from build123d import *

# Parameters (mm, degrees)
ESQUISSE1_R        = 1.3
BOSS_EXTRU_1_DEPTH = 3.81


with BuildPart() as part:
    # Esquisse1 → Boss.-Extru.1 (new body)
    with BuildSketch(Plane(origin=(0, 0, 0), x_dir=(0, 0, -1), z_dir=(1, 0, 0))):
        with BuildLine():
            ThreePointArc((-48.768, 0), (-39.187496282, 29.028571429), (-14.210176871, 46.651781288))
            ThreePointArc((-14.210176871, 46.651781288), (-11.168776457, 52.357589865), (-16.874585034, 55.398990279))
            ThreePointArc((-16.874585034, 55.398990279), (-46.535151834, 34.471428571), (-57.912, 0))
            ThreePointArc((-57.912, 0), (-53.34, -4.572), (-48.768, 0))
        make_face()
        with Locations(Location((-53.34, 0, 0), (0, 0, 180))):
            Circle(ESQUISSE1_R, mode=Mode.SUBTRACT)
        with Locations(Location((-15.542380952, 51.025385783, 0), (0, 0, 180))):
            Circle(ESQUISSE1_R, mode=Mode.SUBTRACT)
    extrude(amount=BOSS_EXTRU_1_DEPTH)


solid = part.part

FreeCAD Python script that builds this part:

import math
import FreeCAD as App
import Part
import Sketcher
from FreeCAD import Vector
Q = App.Units.Quantity

doc = App.newDocument("Part")
body = doc.addObject("PartDesign::Body", "Body")

sketch1 = doc.addObject("Sketcher::SketchObject", "Sketch")
body.addObject(sketch1)
sketch1.AttachmentSupport = (doc.YZ_Plane, [""])
sketch1.MapMode = "FlatFace"
sketch1.addGeometry(Part.ArcOfCircle(Part.Circle(Vector(0, 0, 0), Vector(0, 0, 1), 48.768), math.radians(16.940786), math.radians(90)), False)
sketch1.addGeometry(Part.ArcOfCircle(Part.Circle(Vector(51.025386, 15.542381, 0), Vector(0, 0, 1), 4.572), math.radians(-163.059214), math.radians(16.940786)), False)
sketch1.addGeometry(Part.ArcOfCircle(Part.Circle(Vector(0, 0, 0), Vector(0, 0, 1), 57.912), math.radians(16.940786), math.radians(90)), False)
sketch1.addGeometry(Part.ArcOfCircle(Part.Circle(Vector(0, 53.34, 0), Vector(0, 0, 1), 4.572), math.radians(90), math.radians(270)), False)
sketch1.addGeometry(Part.Circle(Vector(0, 53.34, 0), Vector(0, 0, 1), 1.3), False)
sketch1.addGeometry(Part.Circle(Vector(51.025386, 15.542381, 0), Vector(0, 0, 1), 1.3), False)
sketch1.addConstraint(Sketcher.Constraint("Tangent", 0, 1, 1, 1))
sketch1.addConstraint(Sketcher.Constraint("Tangent", 1, 2, 2, 1))
sketch1.addConstraint(Sketcher.Constraint("Tangent", 2, 2, 3, 1))
sketch1.addConstraint(Sketcher.Constraint("Tangent", 3, 2, 0, 2))
sketch1.addConstraint(Sketcher.Constraint("Coincident", 0, 3, -1, 1))
sketch1.addConstraint(Sketcher.Constraint("Coincident", 2, 3, -1, 1))
sketch1.addConstraint(Sketcher.Constraint("Coincident", 4, 3, 3, 3))
sketch1.addConstraint(Sketcher.Constraint("Coincident", 5, 3, 1, 3))
sketch1.addConstraint(Sketcher.Constraint("Equal", 4, 5))
sketch1.addConstraint(Sketcher.Constraint("PointOnObject", 3, 3, -2))
sketch1.addConstraint(Sketcher.Constraint("Radius", 0, Q("1.92 in")))
sketch1.addConstraint(Sketcher.Constraint("Radius", 1, Q("0.18 in")))
sketch1.addConstraint(Sketcher.Constraint("Diameter", 4, 2.6))
sketch1.addConstraint(Sketcher.Constraint("DistanceY", -1, 1, 1, 3, 15.542381))
pad1 = doc.addObject("PartDesign::Pad", "Pad")
body.addObject(pad1)
pad1.Profile = sketch1
pad1.Length = Q("0.15 in")

doc.recompute()
